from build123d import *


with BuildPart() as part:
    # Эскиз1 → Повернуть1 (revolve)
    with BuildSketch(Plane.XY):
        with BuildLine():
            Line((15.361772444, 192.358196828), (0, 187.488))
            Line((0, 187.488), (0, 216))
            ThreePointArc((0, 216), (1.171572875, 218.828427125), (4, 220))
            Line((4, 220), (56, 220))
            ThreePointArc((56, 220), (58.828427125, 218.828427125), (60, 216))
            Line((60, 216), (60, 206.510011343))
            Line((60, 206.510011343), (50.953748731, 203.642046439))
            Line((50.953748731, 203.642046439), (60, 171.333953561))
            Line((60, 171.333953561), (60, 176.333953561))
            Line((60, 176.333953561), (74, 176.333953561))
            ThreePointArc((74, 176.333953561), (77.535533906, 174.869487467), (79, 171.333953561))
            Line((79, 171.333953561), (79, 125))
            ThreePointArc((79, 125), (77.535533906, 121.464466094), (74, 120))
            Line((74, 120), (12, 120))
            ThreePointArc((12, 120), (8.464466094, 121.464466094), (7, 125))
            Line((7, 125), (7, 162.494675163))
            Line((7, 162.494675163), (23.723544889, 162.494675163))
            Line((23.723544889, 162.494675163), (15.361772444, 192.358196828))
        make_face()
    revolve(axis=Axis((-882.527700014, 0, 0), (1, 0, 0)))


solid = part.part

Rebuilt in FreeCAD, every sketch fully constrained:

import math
import FreeCAD as App
import Part
import Sketcher

doc = App.newDocument("Part")
body = doc.addObject("PartDesign::Body", "Body")

# Sketch on XY plane
sketch1 = body.newObject("Sketcher::SketchObject", "Sketch")
sketch1.AttachmentSupport = (doc.getObject("XY_Plane"), [""])
sketch1.MapMode = "FlatFace"
sketch1.addGeometry([
    Part.LineSegment(App.Vector(0, 187.5, 0), App.Vector(15.4, 192.4, 0)),  # 0
    Part.LineSegment(App.Vector(15.4, 192.4, 0), App.Vector(23.7, 162.5, 0)),  # 1
    Part.LineSegment(App.Vector(23.7, 162.5, 0), App.Vector(7, 162.5, 0)),  # 2
    Part.LineSegment(App.Vector(7, 162.5, 0), App.Vector(7, 125, 0)),  # 3
    Part.ArcOfCircle(Part.Circle(App.Vector(12, 125, 0), App.Vector(0, 0, 1), 5), math.radians(180), math.radians(270)),  # 4
    Part.LineSegment(App.Vector(12, 120, 0), App.Vector(74, 120, 0)),  # 5
    Part.ArcOfCircle(Part.Circle(App.Vector(74, 125, 0), App.Vector(0, 0, 1), 5), math.radians(-90), math.radians(0)),  # 6
    Part.LineSegment(App.Vector(79, 125, 0), App.Vector(79, 171.3, 0)),  # 7
    Part.ArcOfCircle(Part.Circle(App.Vector(74, 171.3, 0), App.Vector(0, 0, 1), 5), math.radians(0), math.radians(90)),  # 8
    Part.LineSegment(App.Vector(74, 176.3, 0), App.Vector(60, 176.3, 0)),  # 9
    Part.LineSegment(App.Vector(60, 176.3, 0), App.Vector(60, 171.3, 0)),  # 10
    Part.LineSegment(App.Vector(60, 171.3, 0), App.Vector(51, 203.6, 0)),  # 11
    Part.LineSegment(App.Vector(51, 203.6, 0), App.Vector(60, 206.5, 0)),  # 12
    Part.LineSegment(App.Vector(60, 206.5, 0), App.Vector(60, 216, 0)),  # 13
    Part.ArcOfCircle(Part.Circle(App.Vector(56, 216, 0), App.Vector(0, 0, 1), 4), math.radians(0), math.radians(90)),  # 14
    Part.LineSegment(App.Vector(56, 220, 0), App.Vector(4, 220, 0)),  # 15
    Part.ArcOfCircle(Part.Circle(App.Vector(4, 216, 0), App.Vector(0, 0, 1), 4), math.radians(90), math.radians(180)),  # 16
    Part.LineSegment(App.Vector(0, 216, 0), App.Vector(0, 187.5, 0)),  # 17
], False)
sketch1.addConstraint([
    Sketcher.Constraint("Coincident", 0, 2, 1, 1),
    Sketcher.Constraint("Coincident", 1, 2, 2, 1),
    Sketcher.Constraint("Coincident", 2, 2, 3, 1),
    Sketcher.Constraint("Tangent", 3, 2, 4, 1),
    Sketcher.Constraint("Tangent", 4, 2, 5, 1),
    Sketcher.Constraint("Tangent", 5, 2, 6, 1),
    Sketcher.Constraint("Tangent", 6, 2, 7, 1),
    Sketcher.Constraint("Tangent", 7, 2, 8, 1),
    Sketcher.Constraint("Tangent", 8, 2, 9, 1),
    Sketcher.Constraint("Coincident", 9, 2, 10, 1),
    Sketcher.Constraint("Coincident", 10, 2, 11, 1),
    Sketcher.Constraint("Coincident", 11, 2, 12, 1),
    Sketcher.Constraint("Coincident", 12, 2, 13, 1),
    Sketcher.Constraint("Tangent", 13, 2, 14, 1),
    Sketcher.Constraint("Tangent", 14, 2, 15, 1),
    Sketcher.Constraint("Tangent", 15, 2, 16, 1),
    Sketcher.Constraint("Tangent", 16, 2, 17, 1),
    Sketcher.Constraint("Coincident", 17, 2, 0, 1),
    Sketcher.Constraint("Horizontal", 2),
    Sketcher.Constraint("Vertical", 3),
    Sketcher.Constraint("Horizontal", 5),
    Sketcher.Constraint("Vertical", 7),
    Sketcher.Constraint("Horizontal", 9),
    Sketcher.Constraint("Vertical", 10),
    Sketcher.Constraint("Vertical", 13),
    Sketcher.Constraint("Horizontal", 15),
    Sketcher.Constraint("Vertical", 17),
    Sketcher.Constraint("Equal", 4, 6),
    Sketcher.Constraint("Equal", 6, 8),
    Sketcher.Constraint("Equal", 14, 16),
    Sketcher.Constraint("PointOnObject", 16, 2, -2),
    Sketcher.Constraint("Parallel", 1, 11),
    Sketcher.Constraint("Parallel", 0, 12),
    Sketcher.Constraint("Horizontal", 7, 2, 10, 2),
    Sketcher.Constraint("Vertical", 10, 2, 12, 2),
    Sketcher.Constraint("Radius", 4, 5.0),
    Sketcher.Constraint("Radius", 14, 4.0),
    Sketcher.Constraint("DistanceX", 5, 1, 5, 2, 62.0),
    Sketcher.Constraint("DistanceX", 9, 2, 9, 1, 14.0),
    Sketcher.Constraint("DistanceX", 15, 2, 15, 1, 52.0),
    Sketcher.Constraint("DistanceY", -1, 1, 4, 3, 125.0),
    Sketcher.Constraint("DistanceY", -1, 1, 14, 3, 216.0),
    Sketcher.Constraint("DistanceY", 17, 2, 17, 1, 28.512),
    Sketcher.Constraint("Distance", 0, 16.115299),
    Sketcher.Constraint("DistanceY", 13, 1, 13, 2, 9.489989),
    Sketcher.Constraint("Distance", 1, 31.012081),
    Sketcher.Constraint("Distance", 11, 33.550671),
    Sketcher.Constraint("Distance", 12, 9.489989),
    Sketcher.Constraint("DistanceX", 2, 2, 2, 1, 16.723545),
])
revolution = body.newObject("PartDesign::Revolution", "Revolution")
revolution.Profile = sketch1
revolution.ReferenceAxis = (sketch1, ["H_Axis"])
revolution.Angle = 360

doc.recompute()
